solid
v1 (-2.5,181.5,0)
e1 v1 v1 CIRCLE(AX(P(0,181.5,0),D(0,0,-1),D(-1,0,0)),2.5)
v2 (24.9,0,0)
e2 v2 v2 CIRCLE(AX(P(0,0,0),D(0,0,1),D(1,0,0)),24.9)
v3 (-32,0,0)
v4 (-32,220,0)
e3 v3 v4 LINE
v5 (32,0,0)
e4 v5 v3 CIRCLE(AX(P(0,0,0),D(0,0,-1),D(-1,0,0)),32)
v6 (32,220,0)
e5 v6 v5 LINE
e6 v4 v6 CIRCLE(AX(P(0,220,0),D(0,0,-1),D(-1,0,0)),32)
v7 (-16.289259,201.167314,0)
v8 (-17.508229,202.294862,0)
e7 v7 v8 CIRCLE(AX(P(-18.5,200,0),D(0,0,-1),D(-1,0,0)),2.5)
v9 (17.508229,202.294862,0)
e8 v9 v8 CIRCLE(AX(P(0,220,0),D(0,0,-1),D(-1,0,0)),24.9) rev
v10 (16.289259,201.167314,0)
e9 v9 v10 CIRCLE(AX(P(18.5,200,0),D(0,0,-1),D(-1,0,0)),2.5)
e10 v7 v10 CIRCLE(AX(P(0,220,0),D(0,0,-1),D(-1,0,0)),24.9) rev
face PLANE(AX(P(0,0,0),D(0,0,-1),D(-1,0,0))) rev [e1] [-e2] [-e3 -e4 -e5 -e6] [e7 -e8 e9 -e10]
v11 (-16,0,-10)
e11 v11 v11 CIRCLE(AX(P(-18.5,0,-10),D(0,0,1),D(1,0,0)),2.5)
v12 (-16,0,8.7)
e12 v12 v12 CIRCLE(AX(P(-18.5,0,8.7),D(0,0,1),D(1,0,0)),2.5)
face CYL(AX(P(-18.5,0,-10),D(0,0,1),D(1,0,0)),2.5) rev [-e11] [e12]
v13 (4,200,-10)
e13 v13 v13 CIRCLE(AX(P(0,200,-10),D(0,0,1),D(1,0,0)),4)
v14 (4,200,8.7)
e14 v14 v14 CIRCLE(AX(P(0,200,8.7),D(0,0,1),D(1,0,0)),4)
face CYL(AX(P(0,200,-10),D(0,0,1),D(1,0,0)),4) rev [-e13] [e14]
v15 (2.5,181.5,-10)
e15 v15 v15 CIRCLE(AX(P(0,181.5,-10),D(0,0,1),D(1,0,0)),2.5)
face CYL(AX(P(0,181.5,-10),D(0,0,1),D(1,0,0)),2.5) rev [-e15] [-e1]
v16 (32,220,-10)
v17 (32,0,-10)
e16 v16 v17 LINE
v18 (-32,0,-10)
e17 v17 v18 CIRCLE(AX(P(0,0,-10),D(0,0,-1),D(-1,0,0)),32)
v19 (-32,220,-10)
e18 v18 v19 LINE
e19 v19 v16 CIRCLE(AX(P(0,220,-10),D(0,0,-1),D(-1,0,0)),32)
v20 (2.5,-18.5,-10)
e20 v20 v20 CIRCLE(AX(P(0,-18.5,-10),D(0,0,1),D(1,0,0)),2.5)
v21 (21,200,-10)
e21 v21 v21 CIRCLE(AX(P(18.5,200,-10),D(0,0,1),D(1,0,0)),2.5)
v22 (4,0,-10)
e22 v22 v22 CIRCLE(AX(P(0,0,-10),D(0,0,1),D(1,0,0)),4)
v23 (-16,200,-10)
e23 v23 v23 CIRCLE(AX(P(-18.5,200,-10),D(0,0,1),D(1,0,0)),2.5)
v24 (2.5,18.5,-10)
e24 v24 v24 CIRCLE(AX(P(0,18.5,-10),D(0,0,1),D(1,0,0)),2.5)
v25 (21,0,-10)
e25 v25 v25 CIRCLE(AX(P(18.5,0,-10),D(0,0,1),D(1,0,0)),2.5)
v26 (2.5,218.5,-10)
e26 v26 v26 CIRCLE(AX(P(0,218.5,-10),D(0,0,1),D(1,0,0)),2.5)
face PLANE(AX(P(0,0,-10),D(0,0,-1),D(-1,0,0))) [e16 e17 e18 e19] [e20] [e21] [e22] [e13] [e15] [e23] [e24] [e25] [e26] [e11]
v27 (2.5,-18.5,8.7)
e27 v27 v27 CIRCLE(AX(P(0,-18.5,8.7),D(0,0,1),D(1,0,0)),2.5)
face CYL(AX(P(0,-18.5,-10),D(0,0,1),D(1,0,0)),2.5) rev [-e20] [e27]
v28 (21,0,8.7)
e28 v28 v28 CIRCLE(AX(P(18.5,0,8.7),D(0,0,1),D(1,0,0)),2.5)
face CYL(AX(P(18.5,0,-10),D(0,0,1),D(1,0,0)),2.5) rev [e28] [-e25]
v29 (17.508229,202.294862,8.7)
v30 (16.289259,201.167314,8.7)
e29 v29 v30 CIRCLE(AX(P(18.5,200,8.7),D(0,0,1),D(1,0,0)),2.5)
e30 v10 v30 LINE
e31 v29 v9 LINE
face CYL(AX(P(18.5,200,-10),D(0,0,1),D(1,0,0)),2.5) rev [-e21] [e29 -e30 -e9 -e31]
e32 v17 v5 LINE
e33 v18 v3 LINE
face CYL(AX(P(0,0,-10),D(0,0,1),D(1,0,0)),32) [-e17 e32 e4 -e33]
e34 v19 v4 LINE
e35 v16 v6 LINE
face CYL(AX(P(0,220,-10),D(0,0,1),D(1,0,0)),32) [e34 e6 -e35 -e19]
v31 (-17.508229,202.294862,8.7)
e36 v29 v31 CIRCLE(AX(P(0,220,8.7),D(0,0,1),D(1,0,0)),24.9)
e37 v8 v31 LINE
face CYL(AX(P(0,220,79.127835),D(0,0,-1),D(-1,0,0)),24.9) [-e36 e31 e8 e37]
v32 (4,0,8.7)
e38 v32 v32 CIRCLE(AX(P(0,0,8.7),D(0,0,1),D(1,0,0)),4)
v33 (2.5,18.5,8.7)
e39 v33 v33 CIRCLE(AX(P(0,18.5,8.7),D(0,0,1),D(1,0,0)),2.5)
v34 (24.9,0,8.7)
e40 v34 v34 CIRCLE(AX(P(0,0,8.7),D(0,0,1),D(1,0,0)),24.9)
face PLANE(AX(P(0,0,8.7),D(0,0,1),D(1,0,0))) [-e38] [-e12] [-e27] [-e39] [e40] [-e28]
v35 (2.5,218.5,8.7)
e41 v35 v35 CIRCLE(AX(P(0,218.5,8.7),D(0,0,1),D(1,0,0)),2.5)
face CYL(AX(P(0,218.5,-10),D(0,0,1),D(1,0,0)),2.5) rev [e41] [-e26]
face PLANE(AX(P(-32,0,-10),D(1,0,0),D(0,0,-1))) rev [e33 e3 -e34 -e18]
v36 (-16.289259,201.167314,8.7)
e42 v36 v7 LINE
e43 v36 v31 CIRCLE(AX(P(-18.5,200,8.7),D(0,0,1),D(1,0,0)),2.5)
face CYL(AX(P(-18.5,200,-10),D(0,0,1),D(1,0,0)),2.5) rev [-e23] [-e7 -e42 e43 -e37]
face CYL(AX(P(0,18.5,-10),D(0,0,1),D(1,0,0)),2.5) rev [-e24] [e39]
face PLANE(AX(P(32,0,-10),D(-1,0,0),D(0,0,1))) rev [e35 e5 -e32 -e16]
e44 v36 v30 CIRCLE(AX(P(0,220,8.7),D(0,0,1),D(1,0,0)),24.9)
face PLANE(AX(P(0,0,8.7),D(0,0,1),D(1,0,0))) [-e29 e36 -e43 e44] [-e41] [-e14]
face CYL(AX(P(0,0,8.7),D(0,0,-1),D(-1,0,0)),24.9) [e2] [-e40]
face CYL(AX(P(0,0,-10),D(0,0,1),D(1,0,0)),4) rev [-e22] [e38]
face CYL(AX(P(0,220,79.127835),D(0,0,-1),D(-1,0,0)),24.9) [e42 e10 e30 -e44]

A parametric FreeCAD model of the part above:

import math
import FreeCAD as App
import Part
import Sketcher
Q = App.Units.Quantity

doc = App.newDocument("Part")
params = doc.addObject("Spreadsheet::Sheet", "Params")
for row, (alias, value) in enumerate([
    ("sketch1_diameter", "49.8 mm"),
    ("pad1_length", "8.7 mm"),
    ("sketch2_radius", "32 mm"),
    ("sketch2_height", "220 mm"),
    ("pad2_length", "10 mm"),
    ("sketch3_diameter", "49.8 mm"),
    ("pad3_length", "8.7 mm"),
    ("sketch4_diameter", "8 mm"),
    ("sketch4_diameter2", "5 mm"),
], start=1):
    params.set(f"A{row}", alias)
    params.set(f"B{row}", "=" + value)
    params.setAlias(f"B{row}", alias)

body = doc.addObject("PartDesign::Body", "Body")

# Sketch on XY plane
sketch1 = body.newObject("Sketcher::SketchObject", "Sketch")
sketch1.AttachmentSupport = (doc.getObject("XY_Plane"), [""])
sketch1.MapMode = "FlatFace"
sketch1.addGeometry(Part.Circle(App.Vector(0, 0, 0), App.Vector(0, 0, 1), 25), False)
sketch1.addConstraint(Sketcher.Constraint("Coincident", 0, 3, -1, 1))
sketch1.addConstraint(Sketcher.Constraint("Diameter", 0, Q("49.8 mm")))
sketch1.setExpression("Constraints[1]", "Params.sketch1_diameter")
pad1 = body.newObject("PartDesign::Pad", "Pad")
pad1.Profile = sketch1
pad1.setExpression("Length", "Params.pad1_length")

# Sketch on XY plane
sketch2 = body.newObject("Sketcher::SketchObject", "Sketch001")
sketch2.AttachmentSupport = (doc.getObject("XY_Plane"), [""])
sketch2.MapMode = "FlatFace"
sketch2.addGeometry(Part.LineSegment(App.Vector(32, 220, 0), App.Vector(32, 0, 0)), False)
sketch2.addGeometry(Part.ArcOfCircle(Part.Circle(App.Vector(0, 0, 0), App.Vector(0, 0, 1), 32), math.radians(180), math.radians(360)), False)
sketch2.addGeometry(Part.LineSegment(App.Vector(-32, 0, 0), App.Vector(-32, 220, 0)), False)
sketch2.addGeometry(Part.ArcOfCircle(Part.Circle(App.Vector(0, 220, 0), App.Vector(0, 0, 1), 32), math.radians(0), math.radians(180)), False)
sketch2.addConstraint(Sketcher.Constraint("Tangent", 0, 2, 1, 2))
sketch2.addConstraint(Sketcher.Constraint("Tangent", 1, 1, 2, 1))
sketch2.addConstraint(Sketcher.Constraint("Tangent", 2, 2, 3, 2))
sketch2.addConstraint(Sketcher.Constraint("Tangent", 3, 1, 0, 1))
sketch2.addConstraint(Sketcher.Constraint("Vertical", 0))
sketch2.addConstraint(Sketcher.Constraint("Vertical", 2))
sketch2.addConstraint(Sketcher.Constraint("Coincident", 1, 3, -1, 1))
sketch2.addConstraint(Sketcher.Constraint("Radius", 1, Q("32 mm")))
sketch2.addConstraint(Sketcher.Constraint("DistanceY", 0, 2, 0, 1, Q("220 mm")))
sketch2.setExpression("Constraints[7]", "Params.sketch2_radius")
sketch2.setExpression("Constraints[8]", "Params.sketch2_height")
pad2 = body.newObject("PartDesign::Pad", "Pad001")
pad2.Profile = sketch2
pad2.setExpression("Length", "Params.pad2_length")
pad2.Reversed = True

# Sketch on XY plane
sketch3 = body.newObject("Sketcher::SketchObject", "Sketch002")
sketch3.AttachmentSupport = (doc.getObject("XY_Plane"), [""])
sketch3.MapMode = "FlatFace"
sketch3.addGeometry(Part.Circle(App.Vector(0, 220, 0), App.Vector(0, 0, 1), 25), False)
sketch3.addConstraint(Sketcher.Constraint("PointOnObject", 0, 3, -2))
sketch3.addConstraint(Sketcher.Constraint("Diameter", 0, Q("49.8 mm")))
sketch3.addConstraint(Sketcher.Constraint("DistanceY", -1, 1, 0, 3, Q("220 mm")))
sketch3.setExpression("Constraints[1]", "Params.sketch3_diameter")
pad3 = body.newObject("PartDesign::Pad", "Pad002")
pad3.Profile = sketch3
pad3.setExpression("Length", "Params.pad3_length")

# Sketch on XY plane
sketch4 = body.newObject("Sketcher::SketchObject", "Sketch003")
sketch4.AttachmentSupport = (doc.getObject("XY_Plane"), [""])
sketch4.MapMode = "FlatFace"
sketch4.AttachmentOffset = App.Placement(App.Vector(0, 0, 8.7), App.Rotation())
sketch4.addGeometry(Part.Circle(App.Vector(0, 0, 0), App.Vector(0, 0, 1), 4), False)
sketch4.addGeometry(Part.Circle(App.Vector(0, 18.5, 0), App.Vector(0, 0, 1), 2.5), False)
sketch4.addGeometry(Part.Circle(App.Vector(-18.5, 0, 0), App.Vector(0, 0, 1), 2.5), False)
sketch4.addGeometry(Part.Circle(App.Vector(18.5, 0, 0), App.Vector(0, 0, 1), 2.5), False)
sketch4.addGeometry(Part.Circle(App.Vector(0, -18.5, 0), App.Vector(0, 0, 1), 2.5), False)
sketch4.addGeometry(Part.Circle(App.Vector(0, 218.5, 0), App.Vector(0, 0, 1), 2.5), False)
sketch4.addGeometry(Part.Circle(App.Vector(0, 200, 0), App.Vector(0, 0, 1), 4), False)
sketch4.addGeometry(Part.Circle(App.Vector(0, 181.5, 0), App.Vector(0, 0, 1), 2.5), False)
sketch4.addGeometry(Part.Circle(App.Vector(-18.5, 200, 0), App.Vector(0, 0, 1), 2.5), False)
sketch4.addGeometry(Part.Circle(App.Vector(18.5, 200, 0), App.Vector(0, 0, 1), 2.5), False)
sketch4.addConstraint(Sketcher.Constraint("Coincident", 0, 3, -1, 1))
sketch4.addConstraint(Sketcher.Constraint("Equal", 1, 2))
sketch4.addConstraint(Sketcher.Constraint("Equal", 2, 3))
sketch4.addConstraint(Sketcher.Constraint("Equal", 3, 4))
sketch4.addConstraint(Sketcher.Constraint("Equal", 4, 5))
sketch4.addConstraint(Sketcher.Constraint("Equal", 0, 6))
sketch4.addConstraint(Sketcher.Constraint("Equal", 5, 7))
sketch4.addConstraint(Sketcher.Constraint("Equal", 7, 8))
sketch4.addConstraint(Sketcher.Constraint("Equal", 8, 9))
sketch4.addConstraint(Sketcher.Constraint("Symmetric", 2, 3, 3, 3, -1, 1))
sketch4.addConstraint(Sketcher.Constraint("Symmetric", 1, 3, 4, 3, -1, 1))
sketch4.addConstraint(Sketcher.Constraint("Symmetric", 8, 3, 9, 3, -2))
sketch4.addConstraint(Sketcher.Constraint("PointOnObject", 1, 3, -2))
sketch4.addConstraint(Sketcher.Constraint("PointOnObject", 2, 3, -1))
sketch4.addConstraint(Sketcher.Constraint("PointOnObject", 5, 3, -2))
sketch4.addConstraint(Sketcher.Constraint("PointOnObject", 6, 3, -2))
sketch4.addConstraint(Sketcher.Constraint("PointOnObject", 7, 3, -2))
sketch4.addConstraint(Sketcher.Constraint("Horizontal", 6, 3, 8, 3))
sketch4.addConstraint(Sketcher.Constraint("Vertical", 2, 3, 8, 3))
sketch4.addConstraint(Sketcher.Constraint("Diameter", 0, Q("8 mm")))
sketch4.addConstraint(Sketcher.Constraint("Diameter", 1, Q("5 mm")))
sketch4.addConstraint(Sketcher.Constraint("DistanceY", -1, 1, 6, 3, Q("200 mm")))
sketch4.addConstraint(Sketcher.Constraint("DistanceX", 2, 3, 3, 3, Q("37 mm")))
sketch4.addConstraint(Sketcher.Constraint("DistanceY", 4, 3, 1, 3, Q("37 mm")))
sketch4.addConstraint(Sketcher.Constraint("DistanceY", 1, 3, 5, 3, Q("200 mm")))
sketch4.addConstraint(Sketcher.Constraint("DistanceY", 7, 3, 5, 3, Q("37 mm")))
sketch4.setExpression("Constraints[19]", "Params.sketch4_diameter")
sketch4.setExpression("Constraints[20]", "Params.sketch4_diameter2")
pocket1 = body.newObject("PartDesign::Pocket", "Pocket")
pocket1.Profile = sketch4
pocket1.Type = "ThroughAll"
pocket1.Midplane = True

doc.recompute()
